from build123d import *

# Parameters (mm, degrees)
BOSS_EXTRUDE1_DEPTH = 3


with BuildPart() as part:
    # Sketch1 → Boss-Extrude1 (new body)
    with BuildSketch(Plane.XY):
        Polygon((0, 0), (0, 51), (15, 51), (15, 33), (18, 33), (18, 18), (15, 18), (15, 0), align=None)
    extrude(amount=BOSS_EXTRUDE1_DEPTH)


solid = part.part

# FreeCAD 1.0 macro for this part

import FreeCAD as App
import Part
import Sketcher

V = App.Vector
Q = App.Units.Quantity

doc = App.newDocument("Part")
params = doc.addObject("Spreadsheet::Sheet", "Params")
for row, (alias, value) in enumerate([
    ("sketch1_width", "15 mm"),
    ("sketch1_width2", "3 mm"),
    ("sketch1_height", "51 mm"),
    ("pad1_length", "3 mm"),
], start=1):
    params.set(f"A{row}", alias)
    params.set(f"B{row}", "=" + value)
    params.setAlias(f"B{row}", alias)

body = doc.addObject("PartDesign::Body", "Body")

sketch1 = doc.addObject("Sketcher::SketchObject", "Sketch")
body.addObject(sketch1)
sketch1.AttachmentSupport = (doc.XY_Plane, [""])
sketch1.MapMode = "FlatFace"
sketch1.addGeometry([
    Part.LineSegment(V(0, 51, 0), V(0, 0, 0)),
    Part.LineSegment(V(0, 0, 0), V(15, 0, 0)),
    Part.LineSegment(V(15, 0, 0), V(15, 18, 0)),
    Part.LineSegment(V(15, 18, 0), V(18, 18, 0)),
    Part.LineSegment(V(18, 18, 0), V(18, 33, 0)),
    Part.LineSegment(V(18, 33, 0), V(15, 33, 0)),
    Part.LineSegment(V(15, 33, 0), V(15, 51, 0)),
    Part.LineSegment(V(15, 51, 0), V(0, 51, 0)),
], False)
sketch1.addConstraint([
    Sketcher.Constraint("Coincident", 0, 2, 1, 1),
    Sketcher.Constraint("Coincident", 1, 2, 2, 1),
    Sketcher.Constraint("Coincident", 2, 2, 3, 1),
    Sketcher.Constraint("Coincident", 3, 2, 4, 1),
    Sketcher.Constraint("Coincident", 4, 2, 5, 1),
    Sketcher.Constraint("Coincident", 5, 2, 6, 1),
    Sketcher.Constraint("Coincident", 6, 2, 7, 1),
    Sketcher.Constraint("Coincident", 7, 2, 0, 1),
    Sketcher.Constraint("Vertical", 0),
    Sketcher.Constraint("Horizontal", 1),
    Sketcher.Constraint("Vertical", 2),
    Sketcher.Constraint("Horizontal", 3),
    Sketcher.Constraint("Vertical", 4),
    Sketcher.Constraint("Horizontal", 5),
    Sketcher.Constraint("Vertical", 6),
    Sketcher.Constraint("Horizontal", 7),
    Sketcher.Constraint("Coincident", 0, 2, -1, 1),
    Sketcher.Constraint("Vertical", 2, 2, 5, 2),
    Sketcher.Constraint("Equal", 7, 4),
    Sketcher.Constraint("Equal", 2, 6),
    Sketcher.Constraint("DistanceX", 1, 1, 1, 2, Q("15 mm")),
    Sketcher.Constraint("DistanceX", 3, 1, 3, 2, Q("3 mm")),
    Sketcher.Constraint("DistanceY", 0, 2, 0, 1, Q("51 mm")),
])
sketch1.setExpression("Constraints[20]", "Params.sketch1_width")
sketch1.setExpression("Constraints[21]", "Params.sketch1_width2")
sketch1.setExpression("Constraints[22]", "Params.sketch1_height")
pad1 = doc.addObject("PartDesign::Pad", "Pad")
body.addObject(pad1)
pad1.Profile = sketch1
pad1.setExpression("Length", "Params.pad1_length")

doc.recompute()
